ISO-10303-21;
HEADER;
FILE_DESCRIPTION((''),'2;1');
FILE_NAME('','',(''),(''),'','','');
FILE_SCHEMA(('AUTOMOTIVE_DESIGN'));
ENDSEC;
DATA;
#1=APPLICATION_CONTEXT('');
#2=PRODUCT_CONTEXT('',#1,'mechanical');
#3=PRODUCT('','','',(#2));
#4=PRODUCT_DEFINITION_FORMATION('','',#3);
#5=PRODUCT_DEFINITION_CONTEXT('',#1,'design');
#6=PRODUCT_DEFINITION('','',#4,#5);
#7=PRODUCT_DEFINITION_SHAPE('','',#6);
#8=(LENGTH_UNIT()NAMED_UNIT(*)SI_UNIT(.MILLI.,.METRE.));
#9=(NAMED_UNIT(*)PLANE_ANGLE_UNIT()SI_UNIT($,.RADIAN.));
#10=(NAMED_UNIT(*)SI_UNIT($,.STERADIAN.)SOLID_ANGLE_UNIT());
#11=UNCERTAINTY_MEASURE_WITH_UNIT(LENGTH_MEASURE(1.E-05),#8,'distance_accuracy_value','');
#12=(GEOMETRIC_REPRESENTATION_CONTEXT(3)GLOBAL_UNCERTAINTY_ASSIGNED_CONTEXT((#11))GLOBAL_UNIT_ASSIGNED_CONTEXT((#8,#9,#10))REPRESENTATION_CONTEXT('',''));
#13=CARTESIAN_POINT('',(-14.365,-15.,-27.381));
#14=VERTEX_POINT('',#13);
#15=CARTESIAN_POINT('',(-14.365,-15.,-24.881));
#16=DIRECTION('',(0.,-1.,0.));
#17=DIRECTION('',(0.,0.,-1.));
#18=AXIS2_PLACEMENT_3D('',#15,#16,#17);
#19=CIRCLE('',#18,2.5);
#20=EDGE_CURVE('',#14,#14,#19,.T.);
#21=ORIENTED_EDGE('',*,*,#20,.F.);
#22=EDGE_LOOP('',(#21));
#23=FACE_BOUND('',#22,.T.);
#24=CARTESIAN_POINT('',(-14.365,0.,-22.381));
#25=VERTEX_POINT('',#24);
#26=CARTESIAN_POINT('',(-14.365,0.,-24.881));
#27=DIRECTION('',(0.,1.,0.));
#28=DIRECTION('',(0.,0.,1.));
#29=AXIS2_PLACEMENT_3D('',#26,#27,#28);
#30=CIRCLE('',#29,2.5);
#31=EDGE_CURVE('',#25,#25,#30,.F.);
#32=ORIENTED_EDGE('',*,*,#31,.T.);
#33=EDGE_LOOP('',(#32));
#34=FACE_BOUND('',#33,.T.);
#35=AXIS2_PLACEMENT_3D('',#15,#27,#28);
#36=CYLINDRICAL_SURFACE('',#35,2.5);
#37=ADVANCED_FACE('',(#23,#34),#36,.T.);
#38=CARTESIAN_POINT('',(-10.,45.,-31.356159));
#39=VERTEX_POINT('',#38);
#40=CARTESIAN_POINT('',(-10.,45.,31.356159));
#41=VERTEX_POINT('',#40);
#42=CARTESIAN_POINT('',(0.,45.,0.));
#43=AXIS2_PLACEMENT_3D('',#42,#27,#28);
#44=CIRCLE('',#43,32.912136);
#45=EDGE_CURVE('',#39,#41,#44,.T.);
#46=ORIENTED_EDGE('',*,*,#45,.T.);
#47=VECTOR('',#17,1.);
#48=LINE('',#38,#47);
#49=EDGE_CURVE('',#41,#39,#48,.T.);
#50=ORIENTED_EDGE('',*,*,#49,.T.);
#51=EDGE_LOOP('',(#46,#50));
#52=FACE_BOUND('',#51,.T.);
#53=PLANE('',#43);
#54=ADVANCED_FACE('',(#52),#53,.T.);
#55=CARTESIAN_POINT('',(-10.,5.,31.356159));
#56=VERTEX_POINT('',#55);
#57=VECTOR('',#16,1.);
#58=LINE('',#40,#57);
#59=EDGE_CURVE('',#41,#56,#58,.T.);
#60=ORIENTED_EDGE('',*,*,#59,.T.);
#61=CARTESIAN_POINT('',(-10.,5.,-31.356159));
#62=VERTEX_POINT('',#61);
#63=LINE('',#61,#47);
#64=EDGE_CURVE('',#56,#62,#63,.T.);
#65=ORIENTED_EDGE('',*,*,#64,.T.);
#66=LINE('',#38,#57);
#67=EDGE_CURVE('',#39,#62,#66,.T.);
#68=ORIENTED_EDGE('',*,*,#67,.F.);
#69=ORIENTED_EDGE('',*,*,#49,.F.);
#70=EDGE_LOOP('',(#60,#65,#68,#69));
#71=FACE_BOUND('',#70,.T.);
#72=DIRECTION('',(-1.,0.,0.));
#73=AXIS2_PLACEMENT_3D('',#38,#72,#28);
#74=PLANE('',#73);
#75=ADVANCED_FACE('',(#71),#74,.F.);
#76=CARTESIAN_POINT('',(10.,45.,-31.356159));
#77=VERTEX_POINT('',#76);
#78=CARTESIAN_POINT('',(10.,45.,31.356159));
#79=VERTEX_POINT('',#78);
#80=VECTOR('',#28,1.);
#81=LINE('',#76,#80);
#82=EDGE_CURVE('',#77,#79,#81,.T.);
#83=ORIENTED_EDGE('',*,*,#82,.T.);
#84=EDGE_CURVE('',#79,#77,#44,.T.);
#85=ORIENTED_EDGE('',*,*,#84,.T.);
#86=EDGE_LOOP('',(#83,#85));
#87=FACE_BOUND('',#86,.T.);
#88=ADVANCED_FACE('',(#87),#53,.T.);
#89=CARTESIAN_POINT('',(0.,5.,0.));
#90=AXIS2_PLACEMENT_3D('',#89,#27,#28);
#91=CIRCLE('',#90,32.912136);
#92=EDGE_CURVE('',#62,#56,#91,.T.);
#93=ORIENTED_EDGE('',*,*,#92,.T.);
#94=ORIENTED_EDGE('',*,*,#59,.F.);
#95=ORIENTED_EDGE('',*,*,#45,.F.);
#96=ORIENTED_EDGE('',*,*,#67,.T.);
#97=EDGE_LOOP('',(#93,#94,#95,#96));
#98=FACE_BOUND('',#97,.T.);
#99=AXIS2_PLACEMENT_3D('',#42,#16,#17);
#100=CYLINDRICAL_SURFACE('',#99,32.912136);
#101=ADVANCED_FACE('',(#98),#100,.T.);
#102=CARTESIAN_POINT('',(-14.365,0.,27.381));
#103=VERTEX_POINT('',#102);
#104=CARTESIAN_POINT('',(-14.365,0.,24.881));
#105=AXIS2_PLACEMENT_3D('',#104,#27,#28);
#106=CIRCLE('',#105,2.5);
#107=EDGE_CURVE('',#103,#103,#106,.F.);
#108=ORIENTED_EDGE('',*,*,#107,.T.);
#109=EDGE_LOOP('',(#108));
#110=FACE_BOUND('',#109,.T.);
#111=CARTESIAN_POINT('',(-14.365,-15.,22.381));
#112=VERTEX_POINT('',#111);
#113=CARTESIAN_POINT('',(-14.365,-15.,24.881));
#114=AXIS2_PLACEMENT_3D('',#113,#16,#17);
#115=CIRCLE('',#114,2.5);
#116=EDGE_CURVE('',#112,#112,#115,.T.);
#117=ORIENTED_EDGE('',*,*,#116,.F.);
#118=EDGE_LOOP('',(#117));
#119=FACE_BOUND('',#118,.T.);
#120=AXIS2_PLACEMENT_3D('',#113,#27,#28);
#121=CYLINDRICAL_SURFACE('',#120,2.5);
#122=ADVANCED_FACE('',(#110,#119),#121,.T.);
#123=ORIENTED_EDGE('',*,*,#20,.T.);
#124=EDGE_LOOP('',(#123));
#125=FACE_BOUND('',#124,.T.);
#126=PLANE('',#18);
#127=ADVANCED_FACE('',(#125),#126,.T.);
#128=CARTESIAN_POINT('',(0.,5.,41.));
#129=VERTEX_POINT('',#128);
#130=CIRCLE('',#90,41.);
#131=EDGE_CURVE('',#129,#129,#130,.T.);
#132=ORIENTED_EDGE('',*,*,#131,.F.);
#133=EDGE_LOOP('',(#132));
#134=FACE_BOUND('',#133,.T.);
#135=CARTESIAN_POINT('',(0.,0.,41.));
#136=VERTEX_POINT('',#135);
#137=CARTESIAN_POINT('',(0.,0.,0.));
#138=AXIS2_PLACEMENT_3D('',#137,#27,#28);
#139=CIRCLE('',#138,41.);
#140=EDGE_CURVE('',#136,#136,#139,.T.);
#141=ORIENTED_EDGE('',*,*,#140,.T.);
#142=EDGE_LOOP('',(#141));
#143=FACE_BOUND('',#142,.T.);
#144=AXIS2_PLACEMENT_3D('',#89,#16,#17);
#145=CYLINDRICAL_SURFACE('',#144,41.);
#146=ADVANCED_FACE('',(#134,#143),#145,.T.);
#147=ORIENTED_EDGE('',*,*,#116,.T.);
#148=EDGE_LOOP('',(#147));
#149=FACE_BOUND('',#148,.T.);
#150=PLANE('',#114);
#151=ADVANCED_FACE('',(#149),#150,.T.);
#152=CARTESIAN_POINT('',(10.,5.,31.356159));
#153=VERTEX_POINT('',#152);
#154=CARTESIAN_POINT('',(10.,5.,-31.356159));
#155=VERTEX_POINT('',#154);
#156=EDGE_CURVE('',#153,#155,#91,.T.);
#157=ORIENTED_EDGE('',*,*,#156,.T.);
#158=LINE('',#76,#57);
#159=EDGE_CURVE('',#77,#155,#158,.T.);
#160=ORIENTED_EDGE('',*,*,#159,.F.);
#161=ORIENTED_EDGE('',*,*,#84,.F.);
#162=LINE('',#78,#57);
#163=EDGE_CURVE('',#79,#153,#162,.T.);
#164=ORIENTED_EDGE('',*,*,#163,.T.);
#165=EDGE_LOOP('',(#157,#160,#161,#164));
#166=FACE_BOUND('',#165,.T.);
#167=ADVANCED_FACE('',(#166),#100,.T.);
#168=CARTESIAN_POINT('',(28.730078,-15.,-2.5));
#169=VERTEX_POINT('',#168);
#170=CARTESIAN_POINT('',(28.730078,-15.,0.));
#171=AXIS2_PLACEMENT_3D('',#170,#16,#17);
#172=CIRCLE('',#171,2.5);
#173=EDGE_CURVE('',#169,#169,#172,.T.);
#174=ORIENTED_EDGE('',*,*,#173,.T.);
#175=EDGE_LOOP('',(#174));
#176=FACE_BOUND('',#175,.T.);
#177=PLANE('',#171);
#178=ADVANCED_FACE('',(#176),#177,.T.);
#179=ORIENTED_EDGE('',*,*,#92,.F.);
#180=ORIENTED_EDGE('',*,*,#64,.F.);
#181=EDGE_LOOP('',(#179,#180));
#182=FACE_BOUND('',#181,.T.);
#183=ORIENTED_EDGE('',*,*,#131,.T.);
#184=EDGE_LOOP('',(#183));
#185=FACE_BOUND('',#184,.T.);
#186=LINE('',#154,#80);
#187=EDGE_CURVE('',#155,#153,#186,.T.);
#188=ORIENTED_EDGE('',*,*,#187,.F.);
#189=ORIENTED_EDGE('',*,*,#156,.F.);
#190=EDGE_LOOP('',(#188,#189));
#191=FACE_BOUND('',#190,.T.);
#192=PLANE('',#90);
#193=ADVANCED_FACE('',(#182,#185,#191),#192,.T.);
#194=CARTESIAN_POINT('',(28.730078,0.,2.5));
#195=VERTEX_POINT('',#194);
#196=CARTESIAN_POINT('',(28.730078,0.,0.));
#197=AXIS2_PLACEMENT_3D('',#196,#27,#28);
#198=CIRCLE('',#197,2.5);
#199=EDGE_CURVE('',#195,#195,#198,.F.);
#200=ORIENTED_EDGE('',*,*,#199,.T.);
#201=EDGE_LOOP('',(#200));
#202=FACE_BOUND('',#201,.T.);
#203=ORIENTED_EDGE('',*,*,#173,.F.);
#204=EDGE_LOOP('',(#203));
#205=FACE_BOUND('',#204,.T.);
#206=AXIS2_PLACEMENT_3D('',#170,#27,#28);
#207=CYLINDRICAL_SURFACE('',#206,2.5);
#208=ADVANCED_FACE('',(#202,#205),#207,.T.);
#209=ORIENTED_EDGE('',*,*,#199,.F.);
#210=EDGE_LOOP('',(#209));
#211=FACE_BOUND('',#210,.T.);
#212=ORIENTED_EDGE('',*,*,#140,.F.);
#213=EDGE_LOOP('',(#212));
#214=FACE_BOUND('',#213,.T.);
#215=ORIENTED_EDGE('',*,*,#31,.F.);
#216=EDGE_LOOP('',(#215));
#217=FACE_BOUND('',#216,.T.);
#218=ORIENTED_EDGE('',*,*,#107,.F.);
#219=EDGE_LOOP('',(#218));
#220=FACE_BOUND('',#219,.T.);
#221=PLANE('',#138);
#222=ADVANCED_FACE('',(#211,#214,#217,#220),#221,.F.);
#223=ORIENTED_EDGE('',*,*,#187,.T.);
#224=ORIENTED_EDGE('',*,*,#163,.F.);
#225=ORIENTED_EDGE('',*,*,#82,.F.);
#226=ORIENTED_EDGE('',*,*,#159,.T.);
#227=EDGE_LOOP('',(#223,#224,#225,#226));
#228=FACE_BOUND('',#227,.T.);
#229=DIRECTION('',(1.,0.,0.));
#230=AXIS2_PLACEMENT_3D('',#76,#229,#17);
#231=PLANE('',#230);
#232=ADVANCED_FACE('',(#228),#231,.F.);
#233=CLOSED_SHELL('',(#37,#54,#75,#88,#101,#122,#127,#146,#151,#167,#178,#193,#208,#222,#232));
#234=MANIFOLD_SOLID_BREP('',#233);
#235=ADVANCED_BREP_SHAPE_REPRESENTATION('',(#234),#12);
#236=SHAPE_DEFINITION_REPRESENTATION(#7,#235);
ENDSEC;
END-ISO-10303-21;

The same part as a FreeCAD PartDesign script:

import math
import FreeCAD as App
import Part
import Sketcher

V = App.Vector

doc = App.newDocument("Part")
body = doc.addObject("PartDesign::Body", "Body")

# Sketch on XZ plane
sketch1 = body.newObject("Sketcher::SketchObject", "Sketch")
sketch1.AttachmentSupport = (doc.getObject("XZ_Plane"), [""])
sketch1.MapMode = "FlatFace"
sketch1.addGeometry(Part.Circle(V(0, 0, 0), V(0, 0, 1), 41), False)
sketch1.addConstraint([
    Sketcher.Constraint("Coincident", 0, 3, -1, 1),
    Sketcher.Constraint("Diameter", 0, 82.0),
])
pad1 = body.newObject("PartDesign::Pad", "Pad")
pad1.Profile = sketch1
pad1.Length = 5
pad1.Reversed = True

# Sketch on XZ plane
sketch2 = body.newObject("Sketcher::SketchObject", "Sketch001")
sketch2.AttachmentSupport = (doc.getObject("XZ_Plane"), [""])
sketch2.MapMode = "FlatFace"
sketch2.addGeometry([
    Part.Circle(V(28.7, 0, 0), V(0, 0, 1), 2.5),
    Part.Circle(V(-14.4, 24.9, 0), V(0, 0, 1), 2.5),
    Part.Circle(V(-14.4, -24.9, 0), V(0, 0, 1), 2.5),
], False)
sketch2.addConstraint([
    Sketcher.Constraint("Equal", 0, 1),
    Sketcher.Constraint("Equal", 1, 2),
    Sketcher.Constraint("Symmetric", 1, 3, 2, 3, -1),
    Sketcher.Constraint("PointOnObject", 0, 3, -1),
    Sketcher.Constraint("Diameter", 0, 5.0),
    Sketcher.Constraint("DistanceX", 1, 3, -1, 1, 14.365),
    Sketcher.Constraint("DistanceY", -1, 1, 1, 3, 24.881),
    Sketcher.Constraint("DistanceX", -1, 1, 0, 3, 28.730078),
])
pad2 = body.newObject("PartDesign::Pad", "Pad001")
pad2.Profile = sketch2
pad2.Length = 15

# Sketch on XZ plane
sketch3 = body.newObject("Sketcher::SketchObject", "Sketch002")
sketch3.AttachmentSupport = (doc.getObject("XZ_Plane"), [""])
sketch3.MapMode = "FlatFace"
sketch3.AttachmentOffset = App.Placement(V(0, 0, -5), App.Rotation())
sketch3.addGeometry([
    Part.LineSegment(V(-10, 31, 0), V(-10, -31, 0)),
    Part.ArcOfCircle(Part.Circle(V(0, 0, 0), V(0, 0, 1), 33), math.radians(108), math.radians(252)),
    Part.LineSegment(V(10, -31, 0), V(10, 31, 0)),
    Part.ArcOfCircle(Part.Circle(V(0, 0, 0), V(0, 0, 1), 33), math.radians(-72), math.radians(72)),
], False)
sketch3.addConstraint([
    Sketcher.Constraint("Coincident", 0, 1, 1, 1),
    Sketcher.Constraint("Coincident", 1, 2, 0, 2),
    Sketcher.Constraint("Coincident", 2, 1, 3, 1),
    Sketcher.Constraint("Coincident", 3, 2, 2, 2),
    Sketcher.Constraint("Vertical", 0),
    Sketcher.Constraint("Vertical", 2),
    Sketcher.Constraint("Coincident", 1, 3, -1, 1),
    Sketcher.Constraint("Coincident", 3, 3, -1, 1),
    Sketcher.Constraint("Equal", 1, 3),
    Sketcher.Constraint("Horizontal", 1, 2, 2, 1),
    Sketcher.Constraint("DistanceX", 0, 1, -1, 1, 10.0),
    Sketcher.Constraint("Radius", 1, 32.912136),
])
pad3 = body.newObject("PartDesign::Pad", "Pad002")
pad3.Profile = sketch3
pad3.Length = 40
pad3.Reversed = True

doc.recompute()
